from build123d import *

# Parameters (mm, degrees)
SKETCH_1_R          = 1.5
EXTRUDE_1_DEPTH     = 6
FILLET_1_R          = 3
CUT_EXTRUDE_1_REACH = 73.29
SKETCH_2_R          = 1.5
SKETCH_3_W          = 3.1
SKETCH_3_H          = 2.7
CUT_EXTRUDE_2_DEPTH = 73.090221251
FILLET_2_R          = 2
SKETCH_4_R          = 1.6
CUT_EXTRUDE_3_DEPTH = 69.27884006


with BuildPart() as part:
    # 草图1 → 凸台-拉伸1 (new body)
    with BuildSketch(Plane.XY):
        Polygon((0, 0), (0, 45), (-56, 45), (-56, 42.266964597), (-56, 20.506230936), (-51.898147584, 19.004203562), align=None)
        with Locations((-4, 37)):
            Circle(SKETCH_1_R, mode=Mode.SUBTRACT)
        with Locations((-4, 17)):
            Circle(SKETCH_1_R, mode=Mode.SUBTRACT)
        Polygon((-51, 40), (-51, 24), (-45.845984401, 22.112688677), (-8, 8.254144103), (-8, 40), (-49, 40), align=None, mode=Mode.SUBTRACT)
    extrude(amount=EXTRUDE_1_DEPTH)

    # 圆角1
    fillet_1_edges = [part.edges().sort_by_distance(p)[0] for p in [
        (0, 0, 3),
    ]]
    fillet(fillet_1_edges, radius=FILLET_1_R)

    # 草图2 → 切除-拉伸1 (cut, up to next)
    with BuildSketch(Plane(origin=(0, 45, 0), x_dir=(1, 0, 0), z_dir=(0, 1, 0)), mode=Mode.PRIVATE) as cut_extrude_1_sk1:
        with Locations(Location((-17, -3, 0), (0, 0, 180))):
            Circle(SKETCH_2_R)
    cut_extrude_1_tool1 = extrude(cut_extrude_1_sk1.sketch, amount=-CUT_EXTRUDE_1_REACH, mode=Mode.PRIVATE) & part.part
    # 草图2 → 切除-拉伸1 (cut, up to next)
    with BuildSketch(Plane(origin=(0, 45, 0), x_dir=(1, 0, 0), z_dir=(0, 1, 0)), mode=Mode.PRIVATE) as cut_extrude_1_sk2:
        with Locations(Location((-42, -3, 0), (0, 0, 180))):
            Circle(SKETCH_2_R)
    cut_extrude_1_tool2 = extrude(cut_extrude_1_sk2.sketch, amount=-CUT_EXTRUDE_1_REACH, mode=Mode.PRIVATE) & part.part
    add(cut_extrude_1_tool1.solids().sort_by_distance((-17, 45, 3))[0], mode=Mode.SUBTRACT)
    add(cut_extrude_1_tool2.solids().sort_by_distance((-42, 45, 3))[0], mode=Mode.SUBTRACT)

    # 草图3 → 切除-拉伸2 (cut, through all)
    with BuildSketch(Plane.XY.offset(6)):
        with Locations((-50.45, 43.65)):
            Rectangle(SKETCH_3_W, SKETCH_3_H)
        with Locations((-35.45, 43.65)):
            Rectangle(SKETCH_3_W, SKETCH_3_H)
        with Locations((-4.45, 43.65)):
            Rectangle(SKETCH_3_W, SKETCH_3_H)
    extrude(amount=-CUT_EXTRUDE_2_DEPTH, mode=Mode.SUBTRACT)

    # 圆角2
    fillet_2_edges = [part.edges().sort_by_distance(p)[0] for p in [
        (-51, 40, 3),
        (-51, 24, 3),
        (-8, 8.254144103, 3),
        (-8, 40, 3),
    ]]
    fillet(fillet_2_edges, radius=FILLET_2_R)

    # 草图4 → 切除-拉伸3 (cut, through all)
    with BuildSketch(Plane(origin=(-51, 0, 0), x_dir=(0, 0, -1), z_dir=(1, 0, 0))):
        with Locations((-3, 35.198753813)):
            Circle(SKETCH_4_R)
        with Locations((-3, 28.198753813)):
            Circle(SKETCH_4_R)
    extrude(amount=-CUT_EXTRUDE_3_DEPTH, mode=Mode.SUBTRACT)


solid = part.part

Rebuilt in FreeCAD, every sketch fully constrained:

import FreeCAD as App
import Part
import Sketcher

V = App.Vector


def edges_at(feature, points):
    """Names of the edges that pass closest to the given points."""
    edges = feature.Shape.Edges
    near = lambda p: min(range(len(edges)), key=lambda i: edges[i].distToShape(Part.Vertex(*p))[0])
    return sorted({f"Edge{near(p) + 1}" for p in points})


def add_polygon(sketch, points):
    """Adds a closed chain of lines whose ends are joined by coincident constraints."""
    first, n = sketch.GeometryCount, len(points)
    for a, b in zip(points, points[1:] + points[:1]):
        sketch.addGeometry(Part.LineSegment(App.Vector(*a, 0), App.Vector(*b, 0)), False)
    for i in range(n):
        sketch.addConstraint(Sketcher.Constraint("Coincident", first + i, 2, first + (i + 1) % n, 1))

doc = App.newDocument("Part")
body = doc.addObject("PartDesign::Body", "Body")

# Sketch on XY plane
sketch1 = body.newObject("Sketcher::SketchObject", "Sketch")
sketch1.AttachmentSupport = (doc.getObject("XY_Plane"), [""])
sketch1.MapMode = "FlatFace"
add_polygon(sketch1, [(0, 0), (0, 45), (-56, 45), (-56, 20.5), (-51.9, 19)])  # lines 0-4
add_polygon(sketch1, [(-51, 24), (-51, 40), (-8, 40), (-8, 8.3), (-45.8, 22.1)])  # lines 5-9
sketch1.addGeometry(Part.Circle(V(-4, 17, 0), V(0, 0, 1), 1.5), False)  # 10
sketch1.addGeometry(Part.Circle(V(-4, 37, 0), V(0, 0, 1), 1.5), False)  # 11
sketch1.addConstraint([
    Sketcher.Constraint("Vertical", 0),
    Sketcher.Constraint("Horizontal", 1),
    Sketcher.Constraint("Vertical", 2),
    Sketcher.Constraint("Vertical", 5),
    Sketcher.Constraint("Horizontal", 6),
    Sketcher.Constraint("Vertical", 7),
    Sketcher.Constraint("Coincident", 4, 2, -1, 1),
    Sketcher.Constraint("Equal", 10, 11),
    Sketcher.Constraint("Parallel", 3, 4),
    Sketcher.Constraint("Parallel", 4, 8),
    Sketcher.Constraint("Parallel", 8, 9),
    Sketcher.Constraint("Vertical", 10, 3, 11, 3),
    Sketcher.Constraint("Diameter", 10, 3.0),
    Sketcher.Constraint("DistanceX", 1, 2, 1, 1, 56.0),
    Sketcher.Constraint("DistanceX", 6, 1, 6, 2, 43.0),
    Sketcher.Constraint("DistanceY", 0, 1, 0, 2, 45.0),
    Sketcher.Constraint("DistanceY", 5, 1, 5, 2, 16.0),
    Sketcher.Constraint("DistanceX", 10, 3, -1, 1, 4.0),
    Sketcher.Constraint("DistanceY", -1, 1, 10, 3, 17.0),
    Sketcher.Constraint("DistanceY", -1, 1, 11, 3, 37.0),
    Sketcher.Constraint("DistanceX", 5, 2, -1, 1, 51.0),
    Sketcher.Constraint("DistanceY", -1, 1, 5, 2, 40.0),
    Sketcher.Constraint("Distance", 9, 5.488699),
    Sketcher.Constraint("DistanceY", 2, 2, 2, 1, 24.493769),
    Sketcher.Constraint("Distance", 3, 4.368212),
])
pad1 = body.newObject("PartDesign::Pad", "Pad")
pad1.Profile = sketch1
pad1.Length = 6
doc.recompute()

fillet = body.newObject("PartDesign::Fillet", "Fillet")
fillet.Base = (pad1, edges_at(pad1, [(0, 0, 3)]))
fillet.Radius = 3

# Sketch on XZ plane
sketch2 = body.newObject("Sketcher::SketchObject", "Sketch001")
sketch2.AttachmentSupport = (doc.getObject("XZ_Plane"), [""])
sketch2.MapMode = "FlatFace"
sketch2.AttachmentOffset = App.Placement(V(0, 0, -45), App.Rotation())
sketch2.addGeometry(Part.Circle(V(-17, 3, 0), V(0, 0, 1), 1.5), False)
sketch2.addConstraint([
    Sketcher.Constraint("Diameter", 0, 3.0),
    Sketcher.Constraint("DistanceX", 0, 3, -1, 1, 17.0),
    Sketcher.Constraint("DistanceY", -1, 1, 0, 3, 3.0),
])
pocket1 = body.newObject("PartDesign::Pocket", "Pocket")
pocket1.Profile = sketch2
pocket1.Type = "UpToFirst"
pocket1.Reversed = True

# Sketch on XZ plane
sketch3 = body.newObject("Sketcher::SketchObject", "Sketch002")
sketch3.AttachmentSupport = (doc.getObject("XZ_Plane"), [""])
sketch3.MapMode = "FlatFace"
sketch3.AttachmentOffset = App.Placement(V(0, 0, -45), App.Rotation())
sketch3.addGeometry(Part.Circle(V(-42, 3, 0), V(0, 0, 1), 1.5), False)
sketch3.addConstraint([
    Sketcher.Constraint("Diameter", 0, 3.0),
    Sketcher.Constraint("DistanceX", 0, 3, -1, 1, 42.0),
    Sketcher.Constraint("DistanceY", -1, 1, 0, 3, 3.0),
])
pocket2 = body.newObject("PartDesign::Pocket", "Pocket001")
pocket2.Profile = sketch3
pocket2.Type = "UpToFirst"
pocket2.Reversed = True

# Sketch on XY plane
sketch4 = body.newObject("Sketcher::SketchObject", "Sketch003")
sketch4.AttachmentSupport = (doc.getObject("XY_Plane"), [""])
sketch4.MapMode = "FlatFace"
sketch4.AttachmentOffset = App.Placement(V(0, 0, 6), App.Rotation())
add_polygon(sketch4, [(-52, 45), (-52, 42.3), (-48.9, 42.3), (-48.9, 45)])  # lines 0-3
add_polygon(sketch4, [(-37, 45), (-37, 42.3), (-33.9, 42.3), (-33.9, 45)])  # lines 4-7
add_polygon(sketch4, [(-6, 45), (-6, 42.3), (-2.9, 42.3), (-2.9, 45)])  # lines 8-11
sketch4.addConstraint([
    Sketcher.Constraint("Vertical", 0),
    Sketcher.Constraint("Horizontal", 1),
    Sketcher.Constraint("Vertical", 2),
    Sketcher.Constraint("Horizontal", 3),
    Sketcher.Constraint("Vertical", 4),
    Sketcher.Constraint("Horizontal", 5),
    Sketcher.Constraint("Vertical", 6),
    Sketcher.Constraint("Horizontal", 7),
    Sketcher.Constraint("Vertical", 8),
    Sketcher.Constraint("Horizontal", 9),
    Sketcher.Constraint("Vertical", 10),
    Sketcher.Constraint("Horizontal", 11),
    Sketcher.Constraint("Horizontal", 1, 2, 4, 2),
    Sketcher.Constraint("Horizontal", 3, 2, 6, 2),
    Sketcher.Constraint("Horizontal", 5, 2, 8, 2),
    Sketcher.Constraint("Horizontal", 7, 2, 10, 2),
    Sketcher.Constraint("Equal", 3, 5),
    Sketcher.Constraint("Equal", 7, 9),
    Sketcher.Constraint("DistanceX", 1, 1, 1, 2, 3.1),
    Sketcher.Constraint("DistanceY", 0, 2, 0, 1, 2.7),
    Sketcher.Constraint("DistanceX", 0, 2, -1, 1, 52.0),
    Sketcher.Constraint("DistanceY", -1, 1, 2, 2, 45.0),
    Sketcher.Constraint("DistanceX", 4, 2, -1, 1, 37.0),
    Sketcher.Constraint("DistanceX", 8, 2, -1, 1, 6.0),
])
pocket3 = body.newObject("PartDesign::Pocket", "Pocket002")
pocket3.Profile = sketch4
pocket3.Type = "ThroughAll"
doc.recompute()

fillet2 = body.newObject("PartDesign::Fillet", "Fillet001")
fillet2.Base = (pocket3, edges_at(pocket3, [
    (-51, 40, 3),
    (-51, 24, 3),
    (-8, 8.254, 3),
    (-8, 40, 3),
]))
fillet2.Radius = 2

# Sketch on YZ plane
sketch5 = body.newObject("Sketcher::SketchObject", "Sketch004")
sketch5.AttachmentSupport = (doc.getObject("YZ_Plane"), [""])
sketch5.MapMode = "FlatFace"
sketch5.AttachmentOffset = App.Placement(V(0, 0, -51), App.Rotation())
sketch5.addGeometry([
    Part.Circle(V(35.2, 3, 0), V(0, 0, 1), 1.6),
    Part.Circle(V(28.2, 3, 0), V(0, 0, 1), 1.6),
], False)
sketch5.addConstraint([
    Sketcher.Constraint("Equal", 0, 1),
    Sketcher.Constraint("Horizontal", 0, 3, 1, 3),
    Sketcher.Constraint("Diameter", 0, 3.2),
    Sketcher.Constraint("DistanceY", -1, 1, 0, 3, 3.0),
    Sketcher.Constraint("DistanceX", 1, 3, 0, 3, 7.0),
    Sketcher.Constraint("DistanceX", -1, 1, 0, 3, 35.198754),
])
pocket4 = body.newObject("PartDesign::Pocket", "Pocket003")
pocket4.Profile = sketch5
pocket4.Type = "ThroughAll"

doc.recompute()
